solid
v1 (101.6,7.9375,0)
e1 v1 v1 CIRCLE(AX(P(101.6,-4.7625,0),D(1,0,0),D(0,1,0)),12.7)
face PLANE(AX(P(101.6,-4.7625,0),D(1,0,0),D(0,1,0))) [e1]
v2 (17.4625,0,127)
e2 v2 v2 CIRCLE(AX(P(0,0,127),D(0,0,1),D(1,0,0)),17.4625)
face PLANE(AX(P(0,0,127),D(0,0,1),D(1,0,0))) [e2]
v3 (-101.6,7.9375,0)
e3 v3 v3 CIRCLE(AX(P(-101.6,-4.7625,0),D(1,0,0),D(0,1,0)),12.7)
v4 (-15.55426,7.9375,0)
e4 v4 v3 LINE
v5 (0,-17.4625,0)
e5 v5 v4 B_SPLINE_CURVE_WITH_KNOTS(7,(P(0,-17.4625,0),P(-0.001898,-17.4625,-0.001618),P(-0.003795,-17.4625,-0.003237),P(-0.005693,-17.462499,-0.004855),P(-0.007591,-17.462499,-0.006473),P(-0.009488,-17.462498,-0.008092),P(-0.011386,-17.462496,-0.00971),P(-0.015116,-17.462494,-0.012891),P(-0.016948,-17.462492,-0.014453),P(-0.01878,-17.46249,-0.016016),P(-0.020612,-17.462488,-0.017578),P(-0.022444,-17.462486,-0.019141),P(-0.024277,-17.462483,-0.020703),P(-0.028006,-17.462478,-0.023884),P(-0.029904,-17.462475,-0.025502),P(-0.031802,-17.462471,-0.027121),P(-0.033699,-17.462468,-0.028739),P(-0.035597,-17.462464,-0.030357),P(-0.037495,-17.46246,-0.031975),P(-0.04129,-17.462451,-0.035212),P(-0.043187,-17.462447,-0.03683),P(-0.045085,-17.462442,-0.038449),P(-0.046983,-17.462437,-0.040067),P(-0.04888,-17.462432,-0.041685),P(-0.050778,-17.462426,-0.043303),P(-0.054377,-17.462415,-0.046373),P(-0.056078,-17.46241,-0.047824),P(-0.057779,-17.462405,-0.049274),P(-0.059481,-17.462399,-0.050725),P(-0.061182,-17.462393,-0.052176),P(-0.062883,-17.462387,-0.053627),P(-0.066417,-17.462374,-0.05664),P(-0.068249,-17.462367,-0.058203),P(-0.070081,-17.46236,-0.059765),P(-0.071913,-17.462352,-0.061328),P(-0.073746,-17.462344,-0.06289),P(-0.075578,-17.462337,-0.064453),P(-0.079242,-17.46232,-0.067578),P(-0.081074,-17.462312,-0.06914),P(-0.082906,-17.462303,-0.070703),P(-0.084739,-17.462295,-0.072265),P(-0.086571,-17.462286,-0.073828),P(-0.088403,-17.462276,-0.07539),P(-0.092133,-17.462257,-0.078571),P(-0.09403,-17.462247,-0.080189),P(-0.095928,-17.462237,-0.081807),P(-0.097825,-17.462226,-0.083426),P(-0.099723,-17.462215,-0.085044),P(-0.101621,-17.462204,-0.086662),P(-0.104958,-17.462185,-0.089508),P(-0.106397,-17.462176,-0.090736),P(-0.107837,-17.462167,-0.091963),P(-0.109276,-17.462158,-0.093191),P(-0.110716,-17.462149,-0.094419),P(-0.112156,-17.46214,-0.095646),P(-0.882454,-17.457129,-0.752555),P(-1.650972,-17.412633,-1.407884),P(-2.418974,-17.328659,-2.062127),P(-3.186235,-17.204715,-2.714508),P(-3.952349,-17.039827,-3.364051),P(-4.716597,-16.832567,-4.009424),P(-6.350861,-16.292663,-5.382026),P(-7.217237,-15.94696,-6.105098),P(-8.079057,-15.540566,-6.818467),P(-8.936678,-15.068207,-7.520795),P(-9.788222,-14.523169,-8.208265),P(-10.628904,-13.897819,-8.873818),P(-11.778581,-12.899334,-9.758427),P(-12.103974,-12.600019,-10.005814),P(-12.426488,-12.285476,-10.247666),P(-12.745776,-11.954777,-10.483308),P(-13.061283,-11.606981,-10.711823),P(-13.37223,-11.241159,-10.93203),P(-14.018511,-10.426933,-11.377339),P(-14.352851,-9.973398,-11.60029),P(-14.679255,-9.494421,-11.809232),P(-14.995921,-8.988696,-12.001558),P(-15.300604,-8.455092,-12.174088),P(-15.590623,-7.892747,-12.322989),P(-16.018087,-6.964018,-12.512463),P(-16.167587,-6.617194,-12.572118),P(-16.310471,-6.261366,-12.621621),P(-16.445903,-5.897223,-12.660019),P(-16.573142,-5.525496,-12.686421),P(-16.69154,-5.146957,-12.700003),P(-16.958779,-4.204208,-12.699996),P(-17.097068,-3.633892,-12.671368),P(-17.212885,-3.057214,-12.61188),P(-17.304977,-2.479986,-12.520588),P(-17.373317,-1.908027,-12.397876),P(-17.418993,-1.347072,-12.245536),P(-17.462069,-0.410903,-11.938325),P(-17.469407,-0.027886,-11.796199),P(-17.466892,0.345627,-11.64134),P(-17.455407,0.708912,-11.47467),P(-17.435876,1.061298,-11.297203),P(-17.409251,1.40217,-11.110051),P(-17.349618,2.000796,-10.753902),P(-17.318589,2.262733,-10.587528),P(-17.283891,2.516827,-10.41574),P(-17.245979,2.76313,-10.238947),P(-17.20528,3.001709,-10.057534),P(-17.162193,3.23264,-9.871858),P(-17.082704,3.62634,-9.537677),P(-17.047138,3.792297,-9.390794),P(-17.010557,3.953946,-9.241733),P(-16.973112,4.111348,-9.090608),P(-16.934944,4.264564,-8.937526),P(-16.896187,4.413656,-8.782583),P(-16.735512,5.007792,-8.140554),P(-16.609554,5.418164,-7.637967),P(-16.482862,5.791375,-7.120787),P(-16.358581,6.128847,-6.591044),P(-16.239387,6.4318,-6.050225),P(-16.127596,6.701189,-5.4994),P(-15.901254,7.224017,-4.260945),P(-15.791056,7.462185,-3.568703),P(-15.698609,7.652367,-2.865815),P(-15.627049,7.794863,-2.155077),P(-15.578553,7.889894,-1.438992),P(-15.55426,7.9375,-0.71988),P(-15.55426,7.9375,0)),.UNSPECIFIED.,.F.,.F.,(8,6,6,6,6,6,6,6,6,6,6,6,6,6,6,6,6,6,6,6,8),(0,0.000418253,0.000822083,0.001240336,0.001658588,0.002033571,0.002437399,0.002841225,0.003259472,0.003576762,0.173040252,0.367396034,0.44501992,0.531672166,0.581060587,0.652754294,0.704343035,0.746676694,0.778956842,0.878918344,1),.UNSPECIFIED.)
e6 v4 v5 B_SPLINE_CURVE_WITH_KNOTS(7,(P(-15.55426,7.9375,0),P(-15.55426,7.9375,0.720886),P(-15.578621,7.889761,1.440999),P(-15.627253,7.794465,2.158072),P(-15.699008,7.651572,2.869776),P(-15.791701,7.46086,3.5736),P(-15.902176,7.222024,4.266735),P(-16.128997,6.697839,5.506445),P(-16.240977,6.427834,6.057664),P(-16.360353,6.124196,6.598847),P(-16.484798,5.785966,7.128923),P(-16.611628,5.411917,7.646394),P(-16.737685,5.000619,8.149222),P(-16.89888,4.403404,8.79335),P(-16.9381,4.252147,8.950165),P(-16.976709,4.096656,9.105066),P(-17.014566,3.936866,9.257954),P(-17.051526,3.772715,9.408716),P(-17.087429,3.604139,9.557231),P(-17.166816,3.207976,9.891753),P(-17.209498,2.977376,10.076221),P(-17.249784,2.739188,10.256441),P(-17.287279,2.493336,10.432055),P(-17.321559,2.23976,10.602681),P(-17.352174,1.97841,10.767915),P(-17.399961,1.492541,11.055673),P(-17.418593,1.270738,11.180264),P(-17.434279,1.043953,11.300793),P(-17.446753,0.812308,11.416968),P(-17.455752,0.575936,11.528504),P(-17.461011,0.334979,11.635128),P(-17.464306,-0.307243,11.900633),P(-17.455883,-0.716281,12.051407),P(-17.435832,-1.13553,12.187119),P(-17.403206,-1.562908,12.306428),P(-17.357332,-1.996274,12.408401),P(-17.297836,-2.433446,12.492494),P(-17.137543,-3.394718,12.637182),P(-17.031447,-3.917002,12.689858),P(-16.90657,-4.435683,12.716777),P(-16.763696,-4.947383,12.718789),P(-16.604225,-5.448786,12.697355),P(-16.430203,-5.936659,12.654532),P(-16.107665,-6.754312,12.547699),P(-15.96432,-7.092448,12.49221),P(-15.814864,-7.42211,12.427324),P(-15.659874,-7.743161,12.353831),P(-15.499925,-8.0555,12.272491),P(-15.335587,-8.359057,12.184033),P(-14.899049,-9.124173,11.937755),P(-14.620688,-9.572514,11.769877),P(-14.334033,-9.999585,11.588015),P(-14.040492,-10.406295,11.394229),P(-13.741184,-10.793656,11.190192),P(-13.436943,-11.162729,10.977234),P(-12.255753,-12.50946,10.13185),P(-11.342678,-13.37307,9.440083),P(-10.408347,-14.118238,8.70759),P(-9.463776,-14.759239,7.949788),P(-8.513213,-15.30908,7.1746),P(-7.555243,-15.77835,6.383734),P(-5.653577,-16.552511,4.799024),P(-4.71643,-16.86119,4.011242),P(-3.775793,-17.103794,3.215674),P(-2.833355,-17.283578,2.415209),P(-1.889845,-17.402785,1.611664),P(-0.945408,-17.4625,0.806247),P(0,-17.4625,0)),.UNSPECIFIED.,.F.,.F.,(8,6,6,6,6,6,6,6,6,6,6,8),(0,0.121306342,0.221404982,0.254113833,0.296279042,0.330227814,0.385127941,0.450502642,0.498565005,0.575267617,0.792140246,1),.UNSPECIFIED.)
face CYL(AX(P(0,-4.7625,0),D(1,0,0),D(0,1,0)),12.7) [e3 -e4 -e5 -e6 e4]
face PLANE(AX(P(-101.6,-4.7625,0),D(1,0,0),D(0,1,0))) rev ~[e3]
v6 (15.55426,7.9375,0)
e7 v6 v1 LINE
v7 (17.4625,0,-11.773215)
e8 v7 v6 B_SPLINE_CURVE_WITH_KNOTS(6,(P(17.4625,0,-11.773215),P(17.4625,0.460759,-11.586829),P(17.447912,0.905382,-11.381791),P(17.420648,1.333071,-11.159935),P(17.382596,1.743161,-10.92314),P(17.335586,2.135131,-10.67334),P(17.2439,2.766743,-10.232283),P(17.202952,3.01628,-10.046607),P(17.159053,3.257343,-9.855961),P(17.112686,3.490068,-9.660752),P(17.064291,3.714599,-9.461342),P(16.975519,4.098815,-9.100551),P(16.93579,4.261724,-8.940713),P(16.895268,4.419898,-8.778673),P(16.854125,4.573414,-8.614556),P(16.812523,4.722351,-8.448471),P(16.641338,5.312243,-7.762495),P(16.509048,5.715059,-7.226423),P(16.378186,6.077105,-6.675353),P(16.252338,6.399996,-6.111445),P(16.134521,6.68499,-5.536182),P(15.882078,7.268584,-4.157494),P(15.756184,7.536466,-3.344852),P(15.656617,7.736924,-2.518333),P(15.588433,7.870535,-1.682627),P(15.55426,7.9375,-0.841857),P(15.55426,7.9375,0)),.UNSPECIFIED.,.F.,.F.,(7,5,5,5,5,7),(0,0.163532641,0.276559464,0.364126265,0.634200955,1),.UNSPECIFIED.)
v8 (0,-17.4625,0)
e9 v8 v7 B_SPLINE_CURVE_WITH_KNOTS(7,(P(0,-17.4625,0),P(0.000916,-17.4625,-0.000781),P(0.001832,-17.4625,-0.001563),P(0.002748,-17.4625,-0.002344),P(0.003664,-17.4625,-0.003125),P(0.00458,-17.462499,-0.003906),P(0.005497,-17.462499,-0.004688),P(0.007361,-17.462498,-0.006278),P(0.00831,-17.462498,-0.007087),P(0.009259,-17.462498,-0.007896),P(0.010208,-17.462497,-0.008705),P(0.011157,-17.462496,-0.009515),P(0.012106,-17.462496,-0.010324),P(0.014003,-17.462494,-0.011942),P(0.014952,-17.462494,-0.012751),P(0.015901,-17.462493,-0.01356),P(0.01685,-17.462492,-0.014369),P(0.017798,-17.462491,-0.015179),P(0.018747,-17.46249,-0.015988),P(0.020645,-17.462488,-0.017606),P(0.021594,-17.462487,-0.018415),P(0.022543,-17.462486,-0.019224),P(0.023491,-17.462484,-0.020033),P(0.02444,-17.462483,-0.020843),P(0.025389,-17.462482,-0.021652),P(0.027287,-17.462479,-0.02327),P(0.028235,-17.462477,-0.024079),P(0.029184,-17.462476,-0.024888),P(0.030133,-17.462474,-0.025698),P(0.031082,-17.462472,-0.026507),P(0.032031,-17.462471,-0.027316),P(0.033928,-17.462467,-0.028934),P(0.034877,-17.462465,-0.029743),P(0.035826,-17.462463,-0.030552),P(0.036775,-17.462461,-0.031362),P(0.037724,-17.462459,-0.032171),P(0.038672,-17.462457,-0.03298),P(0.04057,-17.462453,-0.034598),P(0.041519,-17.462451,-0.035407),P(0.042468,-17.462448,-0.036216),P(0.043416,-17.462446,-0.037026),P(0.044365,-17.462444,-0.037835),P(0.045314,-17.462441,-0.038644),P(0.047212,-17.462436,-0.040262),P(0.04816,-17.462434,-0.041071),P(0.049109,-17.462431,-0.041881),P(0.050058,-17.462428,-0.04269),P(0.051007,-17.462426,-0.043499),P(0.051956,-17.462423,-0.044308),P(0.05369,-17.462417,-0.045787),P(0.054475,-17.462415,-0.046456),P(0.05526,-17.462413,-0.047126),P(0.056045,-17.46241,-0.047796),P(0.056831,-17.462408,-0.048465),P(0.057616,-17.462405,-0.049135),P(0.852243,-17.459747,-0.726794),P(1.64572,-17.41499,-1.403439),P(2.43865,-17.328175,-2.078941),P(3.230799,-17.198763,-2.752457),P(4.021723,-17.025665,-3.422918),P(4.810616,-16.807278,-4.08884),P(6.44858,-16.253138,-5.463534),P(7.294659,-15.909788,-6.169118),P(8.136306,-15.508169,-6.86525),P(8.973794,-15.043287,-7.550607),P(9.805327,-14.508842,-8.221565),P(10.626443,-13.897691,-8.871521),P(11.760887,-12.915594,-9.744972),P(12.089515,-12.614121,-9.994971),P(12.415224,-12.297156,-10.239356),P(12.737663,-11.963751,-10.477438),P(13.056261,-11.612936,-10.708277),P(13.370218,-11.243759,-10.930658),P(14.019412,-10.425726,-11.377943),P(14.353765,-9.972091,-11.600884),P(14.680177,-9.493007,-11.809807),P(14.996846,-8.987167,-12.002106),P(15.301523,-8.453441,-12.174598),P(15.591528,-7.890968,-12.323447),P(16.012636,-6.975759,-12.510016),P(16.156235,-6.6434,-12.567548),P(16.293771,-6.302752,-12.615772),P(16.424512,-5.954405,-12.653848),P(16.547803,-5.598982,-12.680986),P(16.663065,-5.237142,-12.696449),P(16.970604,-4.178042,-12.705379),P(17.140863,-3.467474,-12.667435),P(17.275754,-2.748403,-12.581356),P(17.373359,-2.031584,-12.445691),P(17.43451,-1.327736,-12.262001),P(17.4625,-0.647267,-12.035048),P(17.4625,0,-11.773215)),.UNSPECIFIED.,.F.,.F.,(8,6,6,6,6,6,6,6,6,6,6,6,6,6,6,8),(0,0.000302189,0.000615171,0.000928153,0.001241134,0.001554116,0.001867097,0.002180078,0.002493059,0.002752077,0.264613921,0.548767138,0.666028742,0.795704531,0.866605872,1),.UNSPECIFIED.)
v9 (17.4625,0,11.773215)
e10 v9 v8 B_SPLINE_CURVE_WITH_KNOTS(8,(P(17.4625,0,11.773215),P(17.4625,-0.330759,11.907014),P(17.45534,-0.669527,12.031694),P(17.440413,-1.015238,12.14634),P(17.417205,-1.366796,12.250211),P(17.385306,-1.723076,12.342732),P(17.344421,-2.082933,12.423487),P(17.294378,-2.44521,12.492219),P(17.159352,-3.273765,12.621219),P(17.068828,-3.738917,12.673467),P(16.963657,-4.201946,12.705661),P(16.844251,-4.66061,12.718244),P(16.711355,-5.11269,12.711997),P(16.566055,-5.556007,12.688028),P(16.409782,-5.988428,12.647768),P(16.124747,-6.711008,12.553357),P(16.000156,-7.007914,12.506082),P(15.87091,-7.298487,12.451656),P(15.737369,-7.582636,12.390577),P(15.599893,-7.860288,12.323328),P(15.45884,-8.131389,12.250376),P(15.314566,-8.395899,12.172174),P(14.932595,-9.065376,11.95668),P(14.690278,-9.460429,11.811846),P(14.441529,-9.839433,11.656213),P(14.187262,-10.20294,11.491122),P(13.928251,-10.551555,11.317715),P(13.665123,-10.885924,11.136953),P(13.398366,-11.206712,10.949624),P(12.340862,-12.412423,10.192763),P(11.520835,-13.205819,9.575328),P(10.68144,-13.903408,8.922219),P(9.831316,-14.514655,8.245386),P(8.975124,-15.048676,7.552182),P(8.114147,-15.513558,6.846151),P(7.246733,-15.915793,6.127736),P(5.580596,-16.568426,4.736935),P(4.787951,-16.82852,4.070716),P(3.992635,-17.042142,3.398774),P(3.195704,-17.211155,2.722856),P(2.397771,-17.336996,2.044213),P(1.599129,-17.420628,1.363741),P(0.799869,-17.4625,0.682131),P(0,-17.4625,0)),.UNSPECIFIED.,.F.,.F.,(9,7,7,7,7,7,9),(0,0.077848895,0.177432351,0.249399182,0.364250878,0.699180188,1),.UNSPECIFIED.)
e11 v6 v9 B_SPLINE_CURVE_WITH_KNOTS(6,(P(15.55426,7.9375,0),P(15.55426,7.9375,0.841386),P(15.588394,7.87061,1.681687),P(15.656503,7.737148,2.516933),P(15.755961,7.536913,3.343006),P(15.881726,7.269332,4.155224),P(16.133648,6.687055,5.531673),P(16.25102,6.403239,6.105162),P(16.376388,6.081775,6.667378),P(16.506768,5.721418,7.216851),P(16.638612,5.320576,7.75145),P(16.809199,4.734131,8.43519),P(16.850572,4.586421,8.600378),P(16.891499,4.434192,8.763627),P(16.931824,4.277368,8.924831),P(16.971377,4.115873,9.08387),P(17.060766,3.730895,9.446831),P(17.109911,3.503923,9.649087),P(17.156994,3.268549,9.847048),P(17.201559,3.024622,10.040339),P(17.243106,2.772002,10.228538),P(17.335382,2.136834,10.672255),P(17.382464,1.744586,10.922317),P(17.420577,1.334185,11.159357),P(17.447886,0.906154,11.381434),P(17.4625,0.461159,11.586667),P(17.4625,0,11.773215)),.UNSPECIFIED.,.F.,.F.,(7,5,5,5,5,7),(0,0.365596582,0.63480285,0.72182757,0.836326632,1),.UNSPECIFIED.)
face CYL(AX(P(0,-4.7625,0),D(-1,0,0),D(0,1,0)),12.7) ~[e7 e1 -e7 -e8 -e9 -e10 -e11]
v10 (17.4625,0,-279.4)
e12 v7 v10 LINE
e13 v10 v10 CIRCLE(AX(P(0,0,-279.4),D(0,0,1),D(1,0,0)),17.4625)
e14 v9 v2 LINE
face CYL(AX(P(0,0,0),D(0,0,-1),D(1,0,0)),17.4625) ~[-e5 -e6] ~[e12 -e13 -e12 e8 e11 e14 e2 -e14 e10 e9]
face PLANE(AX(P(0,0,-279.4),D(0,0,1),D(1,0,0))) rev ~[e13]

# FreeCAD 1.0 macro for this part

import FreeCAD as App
import Part
import Sketcher
from FreeCAD import Vector
Q = App.Units.Quantity

doc = App.newDocument("Part")
params = doc.addObject("Spreadsheet::Sheet", "Params")
for row, (alias, value) in enumerate([
    ("sketch1_diameter", "1.375 in"),
    ("pad1_length", "11 in"),
    ("sketch2_diameter", "1.375 in"),
    ("pad2_length", "5 in"),
    ("sketch3_diameter", "1 in"),
    ("pad3_length", "4 in"),
    ("sketch4_diameter", "1 in"),
    ("pad4_length", "4 in"),
], start=1):
    params.set(f"A{row}", alias)
    params.set(f"B{row}", "=" + value)
    params.setAlias(f"B{row}", alias)

body = doc.addObject("PartDesign::Body", "Body")

sketch1 = doc.addObject("Sketcher::SketchObject", "Sketch")
body.addObject(sketch1)
sketch1.AttachmentSupport = (doc.XY_Plane, [""])
sketch1.MapMode = "FlatFace"
sketch1.addGeometry(Part.Circle(Vector(0, 0, 0), Vector(0, 0, 1), 17.4625), False)
sketch1.addConstraint([
    Sketcher.Constraint("Coincident", 0, 3, -1, 1),
    Sketcher.Constraint("Diameter", 0, Q("1.375 in")),
])
sketch1.setExpression("Constraints[1]", "Params.sketch1_diameter")
pad1 = doc.addObject("PartDesign::Pad", "Pad")
body.addObject(pad1)
pad1.Profile = sketch1
pad1.setExpression("Length", "Params.pad1_length")
pad1.Reversed = True

sketch2 = doc.addObject("Sketcher::SketchObject", "Sketch001")
body.addObject(sketch2)
sketch2.AttachmentSupport = (doc.XY_Plane, [""])
sketch2.MapMode = "FlatFace"
sketch2.addGeometry(Part.Circle(Vector(0, 0, 0), Vector(0, 0, 1), 17.4625), False)
sketch2.addConstraint([
    Sketcher.Constraint("Coincident", 0, 3, -1, 1),
    Sketcher.Constraint("Diameter", 0, Q("1.375 in")),
])
sketch2.setExpression("Constraints[1]", "Params.sketch2_diameter")
pad2 = doc.addObject("PartDesign::Pad", "Pad001")
body.addObject(pad2)
pad2.Profile = sketch2
pad2.setExpression("Length", "Params.pad2_length")

sketch3 = doc.addObject("Sketcher::SketchObject", "Sketch002")
body.addObject(sketch3)
sketch3.AttachmentSupport = (doc.YZ_Plane, [""])
sketch3.MapMode = "FlatFace"
sketch3.addGeometry(Part.Circle(Vector(-4.7625, 0, 0), Vector(0, 0, 1), 12.7), False)
sketch3.addConstraint([
    Sketcher.Constraint("PointOnObject", 0, 3, -1),
    Sketcher.Constraint("Diameter", 0, Q("1 in")),
    Sketcher.Constraint("DistanceX", 0, 3, -1, 1, Q("0.1875 in")),
])
sketch3.setExpression("Constraints[1]", "Params.sketch3_diameter")
pad3 = doc.addObject("PartDesign::Pad", "Pad002")
body.addObject(pad3)
pad3.Profile = sketch3
pad3.setExpression("Length", "Params.pad3_length")

sketch4 = doc.addObject("Sketcher::SketchObject", "Sketch003")
body.addObject(sketch4)
sketch4.AttachmentSupport = (doc.YZ_Plane, [""])
sketch4.MapMode = "FlatFace"
sketch4.addGeometry(Part.Circle(Vector(-4.7625, 0, 0), Vector(0, 0, 1), 12.7), False)
sketch4.addConstraint([
    Sketcher.Constraint("PointOnObject", 0, 3, -1),
    Sketcher.Constraint("Diameter", 0, Q("1 in")),
    Sketcher.Constraint("DistanceX", 0, 3, -1, 1, Q("0.1875 in")),
])
sketch4.setExpression("Constraints[1]", "Params.sketch4_diameter")
pad4 = doc.addObject("PartDesign::Pad", "Pad003")
body.addObject(pad4)
pad4.Profile = sketch4
pad4.setExpression("Length", "Params.pad4_length")
pad4.Reversed = True

doc.recompute()
